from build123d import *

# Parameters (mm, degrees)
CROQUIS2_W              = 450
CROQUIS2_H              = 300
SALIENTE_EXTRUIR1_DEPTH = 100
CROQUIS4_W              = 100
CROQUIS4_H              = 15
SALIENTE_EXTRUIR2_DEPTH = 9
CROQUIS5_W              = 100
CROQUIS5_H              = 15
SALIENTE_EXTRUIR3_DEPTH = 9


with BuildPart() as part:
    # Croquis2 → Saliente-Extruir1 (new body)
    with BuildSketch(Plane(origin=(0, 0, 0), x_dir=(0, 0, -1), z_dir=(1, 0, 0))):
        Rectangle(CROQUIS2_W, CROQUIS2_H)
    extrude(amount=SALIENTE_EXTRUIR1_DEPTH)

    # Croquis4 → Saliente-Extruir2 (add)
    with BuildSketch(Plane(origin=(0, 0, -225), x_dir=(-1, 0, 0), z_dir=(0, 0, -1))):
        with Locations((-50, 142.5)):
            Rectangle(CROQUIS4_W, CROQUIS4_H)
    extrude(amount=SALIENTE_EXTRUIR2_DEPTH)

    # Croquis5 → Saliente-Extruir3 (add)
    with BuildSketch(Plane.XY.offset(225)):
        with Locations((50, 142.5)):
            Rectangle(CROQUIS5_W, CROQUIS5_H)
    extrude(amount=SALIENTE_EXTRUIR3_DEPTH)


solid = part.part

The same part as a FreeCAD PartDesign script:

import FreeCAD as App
import Part
import Sketcher
from FreeCAD import Vector
Q = App.Units.Quantity


def add_polygon(sketch, points):
    """Adds a closed chain of lines whose ends are joined by coincident constraints."""
    first, n = sketch.GeometryCount, len(points)
    for a, b in zip(points, points[1:] + points[:1]):
        sketch.addGeometry(Part.LineSegment(App.Vector(*a, 0), App.Vector(*b, 0)), False)
    for i in range(n):
        sketch.addConstraint(Sketcher.Constraint("Coincident", first + i, 2, first + (i + 1) % n, 1))

doc = App.newDocument("Part")
body = doc.addObject("PartDesign::Body", "Body")

# Sketch on YZ plane
sketch1 = doc.addObject("Sketcher::SketchObject", "Sketch")
body.addObject(sketch1)
sketch1.AttachmentSupport = (doc.YZ_Plane, [""])
sketch1.MapMode = "FlatFace"
add_polygon(sketch1, [(150, 225), (-150, 225), (-150, -225), (150, -225)])  # lines 0-3
sketch1.addConstraint(Sketcher.Constraint("Horizontal", 0))
sketch1.addConstraint(Sketcher.Constraint("Vertical", 1))
sketch1.addConstraint(Sketcher.Constraint("Horizontal", 2))
sketch1.addConstraint(Sketcher.Constraint("Vertical", 3))
sketch1.addConstraint(Sketcher.Constraint("Symmetric", 0, 2, 2, 2, -1, 1))
sketch1.addConstraint(Sketcher.Constraint("DistanceX", 0, 2, 0, 1, Q("300 mm")))
sketch1.addConstraint(Sketcher.Constraint("DistanceY", 1, 2, 1, 1, Q("450 mm")))
pad1 = doc.addObject("PartDesign::Pad", "Pad")
body.addObject(pad1)
pad1.Profile = sketch1
pad1.Length = 100

# Sketch on XY plane
sketch2 = doc.addObject("Sketcher::SketchObject", "Sketch001")
body.addObject(sketch2)
sketch2.AttachmentSupport = (doc.XY_Plane, [""])
sketch2.MapMode = "FlatFace"
sketch2.AttachmentOffset = App.Placement(Vector(0, 0, -225), App.Rotation())
add_polygon(sketch2, [(100, 150), (100, 135), (0, 135), (0, 150)])  # lines 0-3
sketch2.addConstraint(Sketcher.Constraint("Vertical", 0))
sketch2.addConstraint(Sketcher.Constraint("Horizontal", 1))
sketch2.addConstraint(Sketcher.Constraint("Vertical", 2))
sketch2.addConstraint(Sketcher.Constraint("Horizontal", 3))
sketch2.addConstraint(Sketcher.Constraint("PointOnObject", 1, 2, -2))
sketch2.addConstraint(Sketcher.Constraint("DistanceX", 1, 2, 1, 1, Q("100 mm")))
sketch2.addConstraint(Sketcher.Constraint("DistanceY", 0, 2, 0, 1, Q("15 mm")))
sketch2.addConstraint(Sketcher.Constraint("DistanceY", -1, 1, 0, 2, Q("135 mm")))
pad2 = doc.addObject("PartDesign::Pad", "Pad001")
body.addObject(pad2)
pad2.Profile = sketch2
pad2.Length = 9
pad2.Reversed = True

# Sketch on XY plane
sketch3 = doc.addObject("Sketcher::SketchObject", "Sketch002")
body.addObject(sketch3)
sketch3.AttachmentSupport = (doc.XY_Plane, [""])
sketch3.MapMode = "FlatFace"
sketch3.AttachmentOffset = App.Placement(Vector(0, 0, 225), App.Rotation())
add_polygon(sketch3, [(0, 150), (0, 135), (100, 135), (100, 150)])  # lines 0-3
sketch3.addConstraint(Sketcher.Constraint("Vertical", 0))
sketch3.addConstraint(Sketcher.Constraint("Horizontal", 1))
sketch3.addConstraint(Sketcher.Constraint("Vertical", 2))
sketch3.addConstraint(Sketcher.Constraint("Horizontal", 3))
sketch3.addConstraint(Sketcher.Constraint("PointOnObject", 0, 2, -2))
sketch3.addConstraint(Sketcher.Constraint("DistanceX", 1, 1, 1, 2, Q("100 mm")))
sketch3.addConstraint(Sketcher.Constraint("DistanceY", 0, 2, 0, 1, Q("15 mm")))
sketch3.addConstraint(Sketcher.Constraint("DistanceY", -1, 1, 0, 2, Q("135 mm")))
pad3 = doc.addObject("PartDesign::Pad", "Pad002")
body.addObject(pad3)
pad3.Profile = sketch3
pad3.Length = 9

doc.recompute()
